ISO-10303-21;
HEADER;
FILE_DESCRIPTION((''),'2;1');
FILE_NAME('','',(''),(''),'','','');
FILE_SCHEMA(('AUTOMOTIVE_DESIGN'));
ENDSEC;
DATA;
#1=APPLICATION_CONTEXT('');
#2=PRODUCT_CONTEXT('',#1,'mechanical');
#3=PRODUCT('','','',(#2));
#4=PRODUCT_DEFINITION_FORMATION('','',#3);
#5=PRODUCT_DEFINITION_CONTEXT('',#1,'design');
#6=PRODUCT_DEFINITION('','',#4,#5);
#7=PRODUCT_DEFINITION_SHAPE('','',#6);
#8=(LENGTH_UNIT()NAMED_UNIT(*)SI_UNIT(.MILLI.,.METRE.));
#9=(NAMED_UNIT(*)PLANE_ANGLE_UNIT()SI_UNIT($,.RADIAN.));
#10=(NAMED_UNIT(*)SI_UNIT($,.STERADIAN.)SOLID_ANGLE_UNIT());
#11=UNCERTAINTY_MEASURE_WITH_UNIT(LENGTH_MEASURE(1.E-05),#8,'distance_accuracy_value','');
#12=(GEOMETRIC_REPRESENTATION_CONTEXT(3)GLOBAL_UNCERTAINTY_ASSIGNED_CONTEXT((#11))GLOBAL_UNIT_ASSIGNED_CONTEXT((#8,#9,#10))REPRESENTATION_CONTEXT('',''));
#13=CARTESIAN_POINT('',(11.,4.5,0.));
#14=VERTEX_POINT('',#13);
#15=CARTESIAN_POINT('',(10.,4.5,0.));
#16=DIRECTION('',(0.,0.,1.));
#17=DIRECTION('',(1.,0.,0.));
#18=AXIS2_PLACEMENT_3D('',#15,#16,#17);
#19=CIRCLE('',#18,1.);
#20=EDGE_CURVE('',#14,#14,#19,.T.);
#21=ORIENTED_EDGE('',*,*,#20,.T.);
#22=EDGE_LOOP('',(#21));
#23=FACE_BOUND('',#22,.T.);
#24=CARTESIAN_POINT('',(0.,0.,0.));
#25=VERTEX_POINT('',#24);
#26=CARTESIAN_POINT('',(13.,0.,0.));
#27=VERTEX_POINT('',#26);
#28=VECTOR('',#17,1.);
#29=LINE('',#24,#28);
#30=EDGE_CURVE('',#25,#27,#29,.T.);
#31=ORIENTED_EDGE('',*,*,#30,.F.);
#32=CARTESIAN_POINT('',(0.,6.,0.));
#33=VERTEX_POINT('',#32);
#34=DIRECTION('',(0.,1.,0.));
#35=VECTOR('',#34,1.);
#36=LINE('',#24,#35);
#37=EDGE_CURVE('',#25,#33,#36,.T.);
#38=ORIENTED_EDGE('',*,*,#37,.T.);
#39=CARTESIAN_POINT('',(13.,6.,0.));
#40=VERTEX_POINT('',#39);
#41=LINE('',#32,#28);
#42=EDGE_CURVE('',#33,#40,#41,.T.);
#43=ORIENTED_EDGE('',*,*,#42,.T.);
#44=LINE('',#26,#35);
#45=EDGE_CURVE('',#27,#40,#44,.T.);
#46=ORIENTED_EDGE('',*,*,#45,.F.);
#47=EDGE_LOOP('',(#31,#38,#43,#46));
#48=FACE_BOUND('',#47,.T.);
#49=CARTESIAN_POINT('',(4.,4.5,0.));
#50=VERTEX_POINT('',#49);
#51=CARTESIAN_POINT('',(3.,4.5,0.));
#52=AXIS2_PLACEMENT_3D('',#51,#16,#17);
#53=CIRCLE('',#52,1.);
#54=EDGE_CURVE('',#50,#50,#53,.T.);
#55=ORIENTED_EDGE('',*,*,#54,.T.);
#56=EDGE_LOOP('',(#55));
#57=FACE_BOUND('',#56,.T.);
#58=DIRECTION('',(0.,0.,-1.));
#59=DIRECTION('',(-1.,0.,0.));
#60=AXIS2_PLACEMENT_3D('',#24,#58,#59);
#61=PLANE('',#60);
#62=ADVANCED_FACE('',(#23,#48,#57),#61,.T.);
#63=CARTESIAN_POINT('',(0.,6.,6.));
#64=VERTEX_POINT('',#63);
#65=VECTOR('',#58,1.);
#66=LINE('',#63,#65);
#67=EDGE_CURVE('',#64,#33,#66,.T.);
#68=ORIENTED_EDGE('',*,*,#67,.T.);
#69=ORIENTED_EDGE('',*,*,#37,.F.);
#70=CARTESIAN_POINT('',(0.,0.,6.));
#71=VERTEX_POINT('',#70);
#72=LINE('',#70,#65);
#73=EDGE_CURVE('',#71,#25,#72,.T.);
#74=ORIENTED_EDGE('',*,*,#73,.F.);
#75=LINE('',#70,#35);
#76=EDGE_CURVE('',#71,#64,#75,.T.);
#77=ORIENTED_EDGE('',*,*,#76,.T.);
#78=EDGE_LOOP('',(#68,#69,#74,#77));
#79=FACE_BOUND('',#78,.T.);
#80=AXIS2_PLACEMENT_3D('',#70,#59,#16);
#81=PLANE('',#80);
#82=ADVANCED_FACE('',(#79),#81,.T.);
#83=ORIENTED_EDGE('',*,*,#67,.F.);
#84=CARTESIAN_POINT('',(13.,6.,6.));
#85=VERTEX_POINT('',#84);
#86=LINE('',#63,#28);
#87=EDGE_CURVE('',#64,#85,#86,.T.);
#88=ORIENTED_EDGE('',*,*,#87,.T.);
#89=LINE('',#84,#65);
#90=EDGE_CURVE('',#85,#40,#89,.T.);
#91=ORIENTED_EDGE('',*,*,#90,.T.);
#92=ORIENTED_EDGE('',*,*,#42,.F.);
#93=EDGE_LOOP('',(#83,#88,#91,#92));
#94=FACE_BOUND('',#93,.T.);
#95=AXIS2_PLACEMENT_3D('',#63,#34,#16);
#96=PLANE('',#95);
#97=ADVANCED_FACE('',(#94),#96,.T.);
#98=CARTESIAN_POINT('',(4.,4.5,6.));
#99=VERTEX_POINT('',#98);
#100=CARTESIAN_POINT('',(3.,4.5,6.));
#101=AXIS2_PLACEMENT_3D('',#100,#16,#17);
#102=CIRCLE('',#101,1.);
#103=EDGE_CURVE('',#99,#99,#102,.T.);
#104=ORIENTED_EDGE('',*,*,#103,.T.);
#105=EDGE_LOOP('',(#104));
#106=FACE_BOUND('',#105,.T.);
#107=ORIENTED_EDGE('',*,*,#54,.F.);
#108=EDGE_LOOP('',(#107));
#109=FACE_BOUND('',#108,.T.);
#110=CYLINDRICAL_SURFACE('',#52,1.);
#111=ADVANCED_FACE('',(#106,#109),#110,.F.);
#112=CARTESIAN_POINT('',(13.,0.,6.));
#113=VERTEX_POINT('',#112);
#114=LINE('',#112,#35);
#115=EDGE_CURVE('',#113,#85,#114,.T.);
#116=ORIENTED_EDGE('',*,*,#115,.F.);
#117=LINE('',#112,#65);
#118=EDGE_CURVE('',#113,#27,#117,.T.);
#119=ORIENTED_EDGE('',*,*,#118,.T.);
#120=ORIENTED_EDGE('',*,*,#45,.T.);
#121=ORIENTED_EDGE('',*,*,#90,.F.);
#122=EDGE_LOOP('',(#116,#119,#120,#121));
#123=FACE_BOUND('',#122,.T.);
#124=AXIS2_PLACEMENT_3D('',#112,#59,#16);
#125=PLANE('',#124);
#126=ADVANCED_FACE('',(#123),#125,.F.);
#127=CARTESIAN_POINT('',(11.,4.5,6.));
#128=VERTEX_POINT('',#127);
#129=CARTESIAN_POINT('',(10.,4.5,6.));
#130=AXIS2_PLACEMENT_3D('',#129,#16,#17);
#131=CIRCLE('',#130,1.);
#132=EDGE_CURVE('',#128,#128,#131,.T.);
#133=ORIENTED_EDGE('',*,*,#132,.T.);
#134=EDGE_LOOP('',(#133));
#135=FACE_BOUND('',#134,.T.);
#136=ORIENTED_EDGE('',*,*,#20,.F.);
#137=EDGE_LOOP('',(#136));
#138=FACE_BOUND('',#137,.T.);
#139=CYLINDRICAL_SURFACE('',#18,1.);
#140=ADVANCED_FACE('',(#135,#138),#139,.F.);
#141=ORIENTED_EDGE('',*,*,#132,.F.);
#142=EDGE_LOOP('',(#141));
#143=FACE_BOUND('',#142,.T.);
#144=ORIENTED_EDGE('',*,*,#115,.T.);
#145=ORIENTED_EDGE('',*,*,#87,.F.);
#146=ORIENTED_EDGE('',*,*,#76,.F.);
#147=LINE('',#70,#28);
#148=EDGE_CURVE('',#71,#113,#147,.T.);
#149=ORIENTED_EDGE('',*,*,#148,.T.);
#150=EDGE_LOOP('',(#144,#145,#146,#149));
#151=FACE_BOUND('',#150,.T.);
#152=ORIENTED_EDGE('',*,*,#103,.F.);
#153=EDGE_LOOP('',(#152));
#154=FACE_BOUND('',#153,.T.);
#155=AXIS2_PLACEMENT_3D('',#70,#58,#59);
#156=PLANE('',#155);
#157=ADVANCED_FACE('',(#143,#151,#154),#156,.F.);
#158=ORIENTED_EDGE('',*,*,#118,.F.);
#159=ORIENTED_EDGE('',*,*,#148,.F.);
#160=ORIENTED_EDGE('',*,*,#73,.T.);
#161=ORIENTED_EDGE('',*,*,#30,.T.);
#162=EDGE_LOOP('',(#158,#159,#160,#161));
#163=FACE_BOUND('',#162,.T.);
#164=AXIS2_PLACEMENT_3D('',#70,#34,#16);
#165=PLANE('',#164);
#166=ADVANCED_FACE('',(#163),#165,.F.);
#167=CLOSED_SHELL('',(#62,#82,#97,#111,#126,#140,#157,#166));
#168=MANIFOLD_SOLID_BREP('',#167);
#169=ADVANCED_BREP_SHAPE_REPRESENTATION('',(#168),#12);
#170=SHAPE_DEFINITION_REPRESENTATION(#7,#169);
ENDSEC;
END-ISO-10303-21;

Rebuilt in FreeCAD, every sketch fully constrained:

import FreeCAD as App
import Part
import Sketcher

doc = App.newDocument("Part")
body = doc.addObject("PartDesign::Body", "Body")

# Sketch on XY plane
sketch1 = doc.addObject("Sketcher::SketchObject", "Sketch")
body.addObject(sketch1)
sketch1.AttachmentSupport = (doc.XY_Plane, [""])
sketch1.MapMode = "FlatFace"
sketch1.addGeometry(Part.LineSegment(App.Vector(0, 6, 0), App.Vector(0, 0, 0)), False)
sketch1.addGeometry(Part.LineSegment(App.Vector(0, 0, 0), App.Vector(13, 0, 0)), False)
sketch1.addGeometry(Part.LineSegment(App.Vector(13, 0, 0), App.Vector(13, 6, 0)), False)
sketch1.addGeometry(Part.LineSegment(App.Vector(13, 6, 0), App.Vector(0, 6, 0)), False)
sketch1.addConstraint(Sketcher.Constraint("Coincident", 0, 2, 1, 1))
sketch1.addConstraint(Sketcher.Constraint("Coincident", 1, 2, 2, 1))
sketch1.addConstraint(Sketcher.Constraint("Coincident", 2, 2, 3, 1))
sketch1.addConstraint(Sketcher.Constraint("Coincident", 3, 2, 0, 1))
sketch1.addConstraint(Sketcher.Constraint("Vertical", 0))
sketch1.addConstraint(Sketcher.Constraint("Horizontal", 1))
sketch1.addConstraint(Sketcher.Constraint("Vertical", 2))
sketch1.addConstraint(Sketcher.Constraint("Horizontal", 3))
sketch1.addConstraint(Sketcher.Constraint("Coincident", 0, 2, -1, 1))
sketch1.addConstraint(Sketcher.Constraint("DistanceX", 1, 1, 1, 2, 13.0))
sketch1.addConstraint(Sketcher.Constraint("DistanceY", 0, 2, 0, 1, 6.0))
pad1 = doc.addObject("PartDesign::Pad", "Pad")
body.addObject(pad1)
pad1.Profile = sketch1
pad1.Length = 6

# Sketch on XY plane
sketch2 = doc.addObject("Sketcher::SketchObject", "Sketch001")
body.addObject(sketch2)
sketch2.AttachmentSupport = (doc.XY_Plane, [""])
sketch2.MapMode = "FlatFace"
sketch2.AttachmentOffset = App.Placement(App.Vector(0, 0, 6), App.Rotation())
sketch2.addGeometry(Part.Circle(App.Vector(3, 4.5, 0), App.Vector(0, 0, 1), 1), False)
sketch2.addGeometry(Part.Circle(App.Vector(10, 4.5, 0), App.Vector(0, 0, 1), 1), False)
sketch2.addConstraint(Sketcher.Constraint("Equal", 0, 1))
sketch2.addConstraint(Sketcher.Constraint("Horizontal", 0, 3, 1, 3))
sketch2.addConstraint(Sketcher.Constraint("Diameter", 0, 2.0))
sketch2.addConstraint(Sketcher.Constraint("DistanceX", -1, 1, 0, 3, 3.0))
sketch2.addConstraint(Sketcher.Constraint("DistanceX", -1, 1, 1, 3, 10.0))
sketch2.addConstraint(Sketcher.Constraint("DistanceY", -1, 1, 0, 3, 4.5))
pocket1 = doc.addObject("PartDesign::Pocket", "Pocket")
body.addObject(pocket1)
pocket1.Profile = sketch2
pocket1.Length = 6

doc.recompute()
